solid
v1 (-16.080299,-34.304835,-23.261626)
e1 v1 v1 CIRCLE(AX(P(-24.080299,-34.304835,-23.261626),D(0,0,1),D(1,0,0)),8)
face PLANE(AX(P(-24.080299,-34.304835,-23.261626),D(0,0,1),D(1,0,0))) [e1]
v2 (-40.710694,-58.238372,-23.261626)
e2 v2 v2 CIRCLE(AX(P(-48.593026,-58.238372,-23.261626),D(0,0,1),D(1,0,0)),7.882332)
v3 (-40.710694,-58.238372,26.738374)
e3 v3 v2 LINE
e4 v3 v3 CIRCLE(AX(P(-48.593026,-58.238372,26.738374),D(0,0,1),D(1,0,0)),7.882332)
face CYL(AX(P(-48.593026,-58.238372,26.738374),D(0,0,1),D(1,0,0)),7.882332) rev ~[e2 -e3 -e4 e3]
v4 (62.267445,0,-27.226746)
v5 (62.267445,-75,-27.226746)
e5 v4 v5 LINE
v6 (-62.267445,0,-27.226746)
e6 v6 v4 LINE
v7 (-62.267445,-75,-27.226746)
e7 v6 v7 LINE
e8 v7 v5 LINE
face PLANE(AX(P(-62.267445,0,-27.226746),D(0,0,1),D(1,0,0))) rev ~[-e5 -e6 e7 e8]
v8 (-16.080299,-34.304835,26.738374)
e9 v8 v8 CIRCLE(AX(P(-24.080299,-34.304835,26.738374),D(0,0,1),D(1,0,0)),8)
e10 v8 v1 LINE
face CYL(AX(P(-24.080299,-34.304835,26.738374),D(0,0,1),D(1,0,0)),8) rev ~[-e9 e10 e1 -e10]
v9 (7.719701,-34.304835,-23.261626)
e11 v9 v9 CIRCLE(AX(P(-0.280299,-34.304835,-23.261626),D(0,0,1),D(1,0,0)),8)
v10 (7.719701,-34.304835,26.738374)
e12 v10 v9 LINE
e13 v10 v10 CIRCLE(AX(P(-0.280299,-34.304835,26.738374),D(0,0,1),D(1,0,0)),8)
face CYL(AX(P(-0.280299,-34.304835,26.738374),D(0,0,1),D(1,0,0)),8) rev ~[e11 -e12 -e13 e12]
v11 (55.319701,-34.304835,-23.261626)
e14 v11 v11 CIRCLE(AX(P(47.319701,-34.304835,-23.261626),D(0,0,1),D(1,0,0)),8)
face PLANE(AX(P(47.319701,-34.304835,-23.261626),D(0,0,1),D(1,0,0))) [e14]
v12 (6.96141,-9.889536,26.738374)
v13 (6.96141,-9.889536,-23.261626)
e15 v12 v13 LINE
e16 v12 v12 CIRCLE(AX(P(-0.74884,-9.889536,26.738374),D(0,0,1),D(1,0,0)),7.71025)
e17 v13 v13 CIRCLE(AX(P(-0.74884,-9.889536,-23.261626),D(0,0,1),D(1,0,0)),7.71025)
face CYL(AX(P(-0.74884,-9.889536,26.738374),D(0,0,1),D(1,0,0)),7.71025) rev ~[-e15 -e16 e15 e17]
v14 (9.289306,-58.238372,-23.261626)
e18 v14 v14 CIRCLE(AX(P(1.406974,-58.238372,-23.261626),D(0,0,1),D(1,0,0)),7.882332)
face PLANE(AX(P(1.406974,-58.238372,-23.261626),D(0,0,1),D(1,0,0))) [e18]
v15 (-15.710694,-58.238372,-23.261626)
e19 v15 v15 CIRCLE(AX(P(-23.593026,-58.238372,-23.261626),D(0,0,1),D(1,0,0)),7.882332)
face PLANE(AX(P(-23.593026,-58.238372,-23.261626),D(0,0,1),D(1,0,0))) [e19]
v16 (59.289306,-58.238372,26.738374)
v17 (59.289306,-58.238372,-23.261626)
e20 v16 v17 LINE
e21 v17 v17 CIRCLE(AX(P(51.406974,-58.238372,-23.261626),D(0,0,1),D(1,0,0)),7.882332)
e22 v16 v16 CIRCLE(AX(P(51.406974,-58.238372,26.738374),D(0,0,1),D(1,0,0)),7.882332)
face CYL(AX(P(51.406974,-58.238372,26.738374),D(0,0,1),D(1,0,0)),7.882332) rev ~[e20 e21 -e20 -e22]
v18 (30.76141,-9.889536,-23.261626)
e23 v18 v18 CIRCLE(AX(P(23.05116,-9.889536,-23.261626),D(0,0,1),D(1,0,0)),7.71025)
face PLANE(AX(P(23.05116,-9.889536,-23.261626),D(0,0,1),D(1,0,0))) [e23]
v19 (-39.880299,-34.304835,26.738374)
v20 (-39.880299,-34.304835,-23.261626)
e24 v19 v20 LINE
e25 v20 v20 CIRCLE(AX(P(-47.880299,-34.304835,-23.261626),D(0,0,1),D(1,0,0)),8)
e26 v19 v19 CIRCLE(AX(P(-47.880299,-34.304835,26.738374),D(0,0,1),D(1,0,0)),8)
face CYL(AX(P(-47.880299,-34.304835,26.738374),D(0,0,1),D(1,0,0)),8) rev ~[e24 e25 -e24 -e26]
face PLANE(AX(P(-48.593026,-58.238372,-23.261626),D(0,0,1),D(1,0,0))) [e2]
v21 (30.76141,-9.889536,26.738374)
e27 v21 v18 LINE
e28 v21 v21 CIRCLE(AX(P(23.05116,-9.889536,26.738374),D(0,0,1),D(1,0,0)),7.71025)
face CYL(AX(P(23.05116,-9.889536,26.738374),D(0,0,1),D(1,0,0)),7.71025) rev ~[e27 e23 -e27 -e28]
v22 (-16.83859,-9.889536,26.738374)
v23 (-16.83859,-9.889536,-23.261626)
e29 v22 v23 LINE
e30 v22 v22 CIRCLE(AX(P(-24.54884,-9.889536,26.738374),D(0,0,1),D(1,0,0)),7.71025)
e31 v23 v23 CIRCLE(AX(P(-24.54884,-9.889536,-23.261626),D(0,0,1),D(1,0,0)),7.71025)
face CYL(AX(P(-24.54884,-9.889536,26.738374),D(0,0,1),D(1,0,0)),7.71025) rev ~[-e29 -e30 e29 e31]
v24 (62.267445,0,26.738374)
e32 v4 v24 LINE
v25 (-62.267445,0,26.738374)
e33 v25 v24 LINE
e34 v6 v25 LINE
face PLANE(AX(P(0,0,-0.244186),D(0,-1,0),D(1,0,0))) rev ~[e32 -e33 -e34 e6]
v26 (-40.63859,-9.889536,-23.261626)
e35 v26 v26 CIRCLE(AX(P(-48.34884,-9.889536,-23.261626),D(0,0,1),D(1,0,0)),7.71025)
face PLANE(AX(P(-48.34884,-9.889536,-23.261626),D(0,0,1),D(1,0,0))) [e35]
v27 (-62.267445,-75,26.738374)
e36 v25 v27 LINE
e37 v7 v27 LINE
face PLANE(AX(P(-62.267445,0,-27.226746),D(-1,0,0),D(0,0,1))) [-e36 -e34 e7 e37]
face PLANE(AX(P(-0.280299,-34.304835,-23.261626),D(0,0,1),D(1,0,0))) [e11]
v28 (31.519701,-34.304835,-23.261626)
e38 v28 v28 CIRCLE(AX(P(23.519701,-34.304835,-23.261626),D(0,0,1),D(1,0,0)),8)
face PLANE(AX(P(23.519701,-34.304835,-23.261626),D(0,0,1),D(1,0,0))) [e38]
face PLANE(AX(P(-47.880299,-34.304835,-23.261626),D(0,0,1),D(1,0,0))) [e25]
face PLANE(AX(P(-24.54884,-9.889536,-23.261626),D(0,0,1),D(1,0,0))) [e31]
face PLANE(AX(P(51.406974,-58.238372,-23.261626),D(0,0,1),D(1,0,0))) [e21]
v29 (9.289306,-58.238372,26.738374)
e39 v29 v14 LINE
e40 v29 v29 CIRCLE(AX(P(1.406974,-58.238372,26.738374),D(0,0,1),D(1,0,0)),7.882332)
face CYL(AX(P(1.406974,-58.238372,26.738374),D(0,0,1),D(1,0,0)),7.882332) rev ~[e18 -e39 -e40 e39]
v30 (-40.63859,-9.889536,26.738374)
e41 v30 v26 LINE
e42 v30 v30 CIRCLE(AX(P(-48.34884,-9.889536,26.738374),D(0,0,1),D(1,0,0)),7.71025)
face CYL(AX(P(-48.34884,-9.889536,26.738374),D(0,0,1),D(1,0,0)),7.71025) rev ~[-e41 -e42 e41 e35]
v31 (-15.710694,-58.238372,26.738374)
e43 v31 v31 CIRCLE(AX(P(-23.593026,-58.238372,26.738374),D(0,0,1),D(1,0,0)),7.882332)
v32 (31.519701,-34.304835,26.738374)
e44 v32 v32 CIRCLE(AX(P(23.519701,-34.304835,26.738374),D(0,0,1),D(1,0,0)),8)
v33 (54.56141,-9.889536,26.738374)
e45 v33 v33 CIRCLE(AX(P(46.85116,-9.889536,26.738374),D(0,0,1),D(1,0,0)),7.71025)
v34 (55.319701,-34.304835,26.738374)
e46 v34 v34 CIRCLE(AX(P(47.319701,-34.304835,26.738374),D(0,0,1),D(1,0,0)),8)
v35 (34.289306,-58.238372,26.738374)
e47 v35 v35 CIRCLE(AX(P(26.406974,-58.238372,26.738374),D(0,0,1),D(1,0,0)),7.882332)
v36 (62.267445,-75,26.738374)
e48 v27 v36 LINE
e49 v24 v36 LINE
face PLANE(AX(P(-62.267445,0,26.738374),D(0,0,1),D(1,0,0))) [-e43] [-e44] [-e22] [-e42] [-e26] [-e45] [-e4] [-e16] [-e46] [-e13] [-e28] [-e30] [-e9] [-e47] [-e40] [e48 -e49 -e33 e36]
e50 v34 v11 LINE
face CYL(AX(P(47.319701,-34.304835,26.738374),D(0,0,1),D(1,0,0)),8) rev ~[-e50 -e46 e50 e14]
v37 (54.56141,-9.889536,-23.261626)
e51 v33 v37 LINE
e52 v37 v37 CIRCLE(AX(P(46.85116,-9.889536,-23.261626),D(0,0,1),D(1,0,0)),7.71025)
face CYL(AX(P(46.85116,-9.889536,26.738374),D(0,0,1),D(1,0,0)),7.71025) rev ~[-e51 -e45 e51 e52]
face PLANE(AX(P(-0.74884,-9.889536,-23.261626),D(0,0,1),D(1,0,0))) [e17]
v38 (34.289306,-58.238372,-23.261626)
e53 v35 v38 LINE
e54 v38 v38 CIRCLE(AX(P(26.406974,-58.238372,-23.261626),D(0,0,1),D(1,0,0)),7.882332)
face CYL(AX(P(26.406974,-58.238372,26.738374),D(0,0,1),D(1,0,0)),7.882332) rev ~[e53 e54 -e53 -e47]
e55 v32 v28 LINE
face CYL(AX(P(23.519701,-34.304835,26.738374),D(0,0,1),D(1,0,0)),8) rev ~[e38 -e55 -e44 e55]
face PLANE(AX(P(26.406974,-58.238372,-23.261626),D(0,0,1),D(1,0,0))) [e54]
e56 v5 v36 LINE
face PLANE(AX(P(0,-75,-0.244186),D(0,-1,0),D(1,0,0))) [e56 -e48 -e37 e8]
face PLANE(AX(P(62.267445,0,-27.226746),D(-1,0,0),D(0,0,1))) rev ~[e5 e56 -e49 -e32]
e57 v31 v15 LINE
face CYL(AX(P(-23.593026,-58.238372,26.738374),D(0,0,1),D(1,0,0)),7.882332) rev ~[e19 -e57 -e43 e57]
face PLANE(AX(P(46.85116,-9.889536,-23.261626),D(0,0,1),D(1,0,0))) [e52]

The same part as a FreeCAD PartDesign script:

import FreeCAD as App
import Part
import Sketcher
from FreeCAD import Vector

doc = App.newDocument("Part")
body = doc.addObject("PartDesign::Body", "Body")

# Sketch on XZ plane
sketch1 = doc.addObject("Sketcher::SketchObject", "Sketch")
body.addObject(sketch1)
sketch1.AttachmentSupport = (doc.XZ_Plane, [""])
sketch1.MapMode = "FlatFace"
sketch1.addGeometry([
    Part.LineSegment(Vector(-62.267445, 26.738374, 0), Vector(-62.267445, -27.226746, 0)),
    Part.LineSegment(Vector(-62.267445, -27.226746, 0), Vector(62.267445, -27.226746, 0)),
    Part.LineSegment(Vector(62.267445, -27.226746, 0), Vector(62.267445, 26.738374, 0)),
    Part.LineSegment(Vector(62.267445, 26.738374, 0), Vector(-62.267445, 26.738374, 0)),
], False)
sketch1.addConstraint([
    Sketcher.Constraint("Coincident", 0, 2, 1, 1),
    Sketcher.Constraint("Coincident", 1, 2, 2, 1),
    Sketcher.Constraint("Coincident", 2, 2, 3, 1),
    Sketcher.Constraint("Coincident", 3, 2, 0, 1),
    Sketcher.Constraint("Vertical", 0),
    Sketcher.Constraint("Horizontal", 1),
    Sketcher.Constraint("Vertical", 2),
    Sketcher.Constraint("Horizontal", 3),
    Sketcher.Constraint("DistanceX", 1, 1, 1, 2, 124.53489),
    Sketcher.Constraint("DistanceY", 0, 2, 0, 1, 53.96512),
    Sketcher.Constraint("DistanceX", 0, 2, -1, 1, 62.267445),
    Sketcher.Constraint("DistanceY", 0, 2, -1, 1, 27.226746),
])
pad1 = doc.addObject("PartDesign::Pad", "Pad")
body.addObject(pad1)
pad1.Profile = sketch1
pad1.Length = 75

# Sketch on XY plane
sketch2 = doc.addObject("Sketcher::SketchObject", "Sketch001")
body.addObject(sketch2)
sketch2.AttachmentSupport = (doc.XY_Plane, [""])
sketch2.MapMode = "FlatFace"
sketch2.AttachmentOffset = App.Placement(Vector(0, 0, 26.738374), App.Rotation())
sketch2.addGeometry([
    Part.Circle(Vector(-48.593026, -58.238372, 0), Vector(0, 0, 1), 7.882332),  # 0
    Part.Circle(Vector(-23.593026, -58.238372, 0), Vector(0, 0, 1), 7.882332),  # 1
    Part.Circle(Vector(1.406974, -58.238372, 0), Vector(0, 0, 1), 7.882332),  # 2
    Part.Circle(Vector(26.406974, -58.238372, 0), Vector(0, 0, 1), 7.882332),  # 3
    Part.Circle(Vector(51.406974, -58.238372, 0), Vector(0, 0, 1), 7.882332),  # 4
    Part.Circle(Vector(-47.880299, -34.304835, 0), Vector(0, 0, 1), 8),  # 5
    Part.Circle(Vector(-24.080299, -34.304835, 0), Vector(0, 0, 1), 8),  # 6
    Part.Circle(Vector(-0.280299, -34.304835, 0), Vector(0, 0, 1), 8),  # 7
    Part.Circle(Vector(23.519701, -34.304835, 0), Vector(0, 0, 1), 8),  # 8
    Part.Circle(Vector(47.319701, -34.304835, 0), Vector(0, 0, 1), 8),  # 9
    Part.Circle(Vector(-48.34884, -9.889536, 0), Vector(0, 0, 1), 7.71025),  # 10
    Part.Circle(Vector(-24.54884, -9.889536, 0), Vector(0, 0, 1), 7.71025),  # 11
    Part.Circle(Vector(-0.74884, -9.889536, 0), Vector(0, 0, 1), 7.71025),  # 12
    Part.Circle(Vector(23.05116, -9.889536, 0), Vector(0, 0, 1), 7.71025),  # 13
    Part.Circle(Vector(46.85116, -9.889536, 0), Vector(0, 0, 1), 7.71025),  # 14
], False)
sketch2.addConstraint([
    Sketcher.Constraint("Equal", 0, 1),
    Sketcher.Constraint("Equal", 1, 2),
    Sketcher.Constraint("Equal", 2, 3),
    Sketcher.Constraint("Equal", 3, 4),
    Sketcher.Constraint("Equal", 5, 6),
    Sketcher.Constraint("Equal", 6, 7),
    Sketcher.Constraint("Equal", 7, 8),
    Sketcher.Constraint("Equal", 8, 9),
    Sketcher.Constraint("Equal", 10, 11),
    Sketcher.Constraint("Equal", 11, 12),
    Sketcher.Constraint("Equal", 12, 13),
    Sketcher.Constraint("Equal", 13, 14),
    Sketcher.Constraint("Horizontal", 0, 3, 1, 3),
    Sketcher.Constraint("Horizontal", 1, 3, 2, 3),
    Sketcher.Constraint("Horizontal", 2, 3, 3, 3),
    Sketcher.Constraint("Horizontal", 3, 3, 4, 3),
    Sketcher.Constraint("Horizontal", 5, 3, 6, 3),
    Sketcher.Constraint("Horizontal", 6, 3, 7, 3),
    Sketcher.Constraint("Horizontal", 7, 3, 8, 3),
    Sketcher.Constraint("Horizontal", 8, 3, 9, 3),
    Sketcher.Constraint("Horizontal", 10, 3, 11, 3),
    Sketcher.Constraint("Horizontal", 11, 3, 12, 3),
    Sketcher.Constraint("Horizontal", 12, 3, 13, 3),
    Sketcher.Constraint("Horizontal", 13, 3, 14, 3),
    Sketcher.Constraint("Diameter", 5, 16.0),
    Sketcher.Constraint("DistanceX", 0, 3, 1, 3, 25.0),
    Sketcher.Constraint("DistanceX", 1, 3, 2, 3, 25.0),
    Sketcher.Constraint("DistanceX", 2, 3, 3, 3, 25.0),
    Sketcher.Constraint("DistanceX", 3, 3, 4, 3, 25.0),
    Sketcher.Constraint("Diameter", 10, 15.4205),
    Sketcher.Constraint("DistanceX", 5, 3, 6, 3, 23.8),
    Sketcher.Constraint("DistanceX", 6, 3, 7, 3, 23.8),
    Sketcher.Constraint("DistanceX", 7, 3, 8, 3, 23.8),
    Sketcher.Constraint("DistanceX", 8, 3, 9, 3, 23.8),
    Sketcher.Constraint("DistanceX", 10, 3, 11, 3, 23.8),
    Sketcher.Constraint("DistanceX", 11, 3, 12, 3, 23.8),
    Sketcher.Constraint("DistanceX", 12, 3, 13, 3, 23.8),
    Sketcher.Constraint("DistanceX", 13, 3, 14, 3, 23.8),
    Sketcher.Constraint("Diameter", 0, 15.764664),
    Sketcher.Constraint("DistanceX", 5, 3, -1, 1, 47.880299),
    Sketcher.Constraint("DistanceY", 5, 3, 10, 3, 24.415299),
    Sketcher.Constraint("DistanceY", 0, 3, -1, 1, 58.238372),
    Sketcher.Constraint("DistanceX", 10, 3, -1, 1, 48.34884),
    Sketcher.Constraint("DistanceX", 0, 3, -1, 1, 48.593026),
    Sketcher.Constraint("DistanceY", 5, 3, -1, 1, 34.304835),
])
pocket1 = doc.addObject("PartDesign::Pocket", "Pocket")
body.addObject(pocket1)
pocket1.Profile = sketch2
pocket1.Length = 50

doc.recompute()
